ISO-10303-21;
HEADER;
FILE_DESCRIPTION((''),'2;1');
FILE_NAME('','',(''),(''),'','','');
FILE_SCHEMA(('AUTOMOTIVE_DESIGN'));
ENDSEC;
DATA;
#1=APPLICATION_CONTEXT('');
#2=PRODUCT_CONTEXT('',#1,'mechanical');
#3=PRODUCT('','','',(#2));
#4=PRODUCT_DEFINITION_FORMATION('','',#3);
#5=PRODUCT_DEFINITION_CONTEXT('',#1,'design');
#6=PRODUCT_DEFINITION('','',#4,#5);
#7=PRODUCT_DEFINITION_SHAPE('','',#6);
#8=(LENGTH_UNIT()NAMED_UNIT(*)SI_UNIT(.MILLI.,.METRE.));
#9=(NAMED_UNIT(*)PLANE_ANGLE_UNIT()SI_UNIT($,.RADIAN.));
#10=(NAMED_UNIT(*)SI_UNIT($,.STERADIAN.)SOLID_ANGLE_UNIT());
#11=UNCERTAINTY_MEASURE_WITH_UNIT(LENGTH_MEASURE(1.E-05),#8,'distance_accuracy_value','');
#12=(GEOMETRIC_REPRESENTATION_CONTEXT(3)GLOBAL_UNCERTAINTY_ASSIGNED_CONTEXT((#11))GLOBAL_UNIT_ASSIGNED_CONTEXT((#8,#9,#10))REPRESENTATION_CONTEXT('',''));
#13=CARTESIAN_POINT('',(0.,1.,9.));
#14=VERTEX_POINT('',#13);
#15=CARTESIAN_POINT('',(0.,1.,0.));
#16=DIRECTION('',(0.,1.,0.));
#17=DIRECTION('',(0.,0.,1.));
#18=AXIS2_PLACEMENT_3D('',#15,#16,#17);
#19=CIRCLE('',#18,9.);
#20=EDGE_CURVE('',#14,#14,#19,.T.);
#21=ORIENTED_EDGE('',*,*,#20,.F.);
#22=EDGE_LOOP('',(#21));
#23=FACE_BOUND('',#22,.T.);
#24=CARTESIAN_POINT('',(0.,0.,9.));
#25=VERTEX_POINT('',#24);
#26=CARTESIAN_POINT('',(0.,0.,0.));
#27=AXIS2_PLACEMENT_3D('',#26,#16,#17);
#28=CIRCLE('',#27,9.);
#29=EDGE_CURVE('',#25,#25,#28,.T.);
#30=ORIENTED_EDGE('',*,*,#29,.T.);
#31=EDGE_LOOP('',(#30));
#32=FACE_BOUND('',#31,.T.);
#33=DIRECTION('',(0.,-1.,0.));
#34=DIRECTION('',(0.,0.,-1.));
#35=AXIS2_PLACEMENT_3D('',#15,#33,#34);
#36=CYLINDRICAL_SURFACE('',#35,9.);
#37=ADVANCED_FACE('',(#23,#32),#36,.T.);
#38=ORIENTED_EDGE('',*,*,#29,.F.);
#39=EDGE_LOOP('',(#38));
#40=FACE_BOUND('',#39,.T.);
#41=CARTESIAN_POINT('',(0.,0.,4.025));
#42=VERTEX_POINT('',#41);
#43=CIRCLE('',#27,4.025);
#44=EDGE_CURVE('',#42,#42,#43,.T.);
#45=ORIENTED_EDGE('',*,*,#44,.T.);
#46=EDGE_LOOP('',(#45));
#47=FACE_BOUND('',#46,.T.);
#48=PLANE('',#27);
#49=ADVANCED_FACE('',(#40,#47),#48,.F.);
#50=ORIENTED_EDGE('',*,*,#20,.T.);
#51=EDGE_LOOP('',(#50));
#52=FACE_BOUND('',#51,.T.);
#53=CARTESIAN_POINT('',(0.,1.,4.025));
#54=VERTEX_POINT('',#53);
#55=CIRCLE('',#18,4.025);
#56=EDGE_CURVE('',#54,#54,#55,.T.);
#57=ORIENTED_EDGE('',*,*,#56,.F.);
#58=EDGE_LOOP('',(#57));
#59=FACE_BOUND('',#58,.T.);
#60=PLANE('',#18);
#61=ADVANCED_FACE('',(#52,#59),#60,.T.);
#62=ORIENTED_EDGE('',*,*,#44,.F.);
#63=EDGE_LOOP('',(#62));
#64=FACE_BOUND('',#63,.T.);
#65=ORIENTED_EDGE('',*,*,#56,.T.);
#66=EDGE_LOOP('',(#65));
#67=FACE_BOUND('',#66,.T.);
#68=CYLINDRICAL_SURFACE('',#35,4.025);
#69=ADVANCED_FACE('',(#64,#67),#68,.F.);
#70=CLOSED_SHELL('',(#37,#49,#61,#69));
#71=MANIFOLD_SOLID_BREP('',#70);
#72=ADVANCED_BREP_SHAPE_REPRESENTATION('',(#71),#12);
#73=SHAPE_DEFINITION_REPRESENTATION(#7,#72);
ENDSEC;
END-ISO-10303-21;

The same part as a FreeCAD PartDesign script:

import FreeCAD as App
import Part
import Sketcher

V = App.Vector

doc = App.newDocument("Part")
body = doc.addObject("PartDesign::Body", "Body")

# Sketch on XZ plane
sketch1 = body.newObject("Sketcher::SketchObject", "Sketch")
sketch1.AttachmentSupport = (doc.getObject("XZ_Plane"), [""])
sketch1.MapMode = "FlatFace"
sketch1.addGeometry([
    Part.Circle(V(0, 0, 0), V(0, 0, 1), 9),
    Part.Circle(V(0, 0, 0), V(0, 0, 1), 4.025),
], False)
sketch1.addConstraint([
    Sketcher.Constraint("Coincident", 0, 3, -1, 1),
    Sketcher.Constraint("Coincident", 1, 3, -1, 1),
    Sketcher.Constraint("Diameter", 0, 18.0),
    Sketcher.Constraint("Diameter", 1, 8.05),
])
pad1 = body.newObject("PartDesign::Pad", "Pad")
pad1.Profile = sketch1
pad1.Length = 1
pad1.Reversed = True

doc.recompute()
